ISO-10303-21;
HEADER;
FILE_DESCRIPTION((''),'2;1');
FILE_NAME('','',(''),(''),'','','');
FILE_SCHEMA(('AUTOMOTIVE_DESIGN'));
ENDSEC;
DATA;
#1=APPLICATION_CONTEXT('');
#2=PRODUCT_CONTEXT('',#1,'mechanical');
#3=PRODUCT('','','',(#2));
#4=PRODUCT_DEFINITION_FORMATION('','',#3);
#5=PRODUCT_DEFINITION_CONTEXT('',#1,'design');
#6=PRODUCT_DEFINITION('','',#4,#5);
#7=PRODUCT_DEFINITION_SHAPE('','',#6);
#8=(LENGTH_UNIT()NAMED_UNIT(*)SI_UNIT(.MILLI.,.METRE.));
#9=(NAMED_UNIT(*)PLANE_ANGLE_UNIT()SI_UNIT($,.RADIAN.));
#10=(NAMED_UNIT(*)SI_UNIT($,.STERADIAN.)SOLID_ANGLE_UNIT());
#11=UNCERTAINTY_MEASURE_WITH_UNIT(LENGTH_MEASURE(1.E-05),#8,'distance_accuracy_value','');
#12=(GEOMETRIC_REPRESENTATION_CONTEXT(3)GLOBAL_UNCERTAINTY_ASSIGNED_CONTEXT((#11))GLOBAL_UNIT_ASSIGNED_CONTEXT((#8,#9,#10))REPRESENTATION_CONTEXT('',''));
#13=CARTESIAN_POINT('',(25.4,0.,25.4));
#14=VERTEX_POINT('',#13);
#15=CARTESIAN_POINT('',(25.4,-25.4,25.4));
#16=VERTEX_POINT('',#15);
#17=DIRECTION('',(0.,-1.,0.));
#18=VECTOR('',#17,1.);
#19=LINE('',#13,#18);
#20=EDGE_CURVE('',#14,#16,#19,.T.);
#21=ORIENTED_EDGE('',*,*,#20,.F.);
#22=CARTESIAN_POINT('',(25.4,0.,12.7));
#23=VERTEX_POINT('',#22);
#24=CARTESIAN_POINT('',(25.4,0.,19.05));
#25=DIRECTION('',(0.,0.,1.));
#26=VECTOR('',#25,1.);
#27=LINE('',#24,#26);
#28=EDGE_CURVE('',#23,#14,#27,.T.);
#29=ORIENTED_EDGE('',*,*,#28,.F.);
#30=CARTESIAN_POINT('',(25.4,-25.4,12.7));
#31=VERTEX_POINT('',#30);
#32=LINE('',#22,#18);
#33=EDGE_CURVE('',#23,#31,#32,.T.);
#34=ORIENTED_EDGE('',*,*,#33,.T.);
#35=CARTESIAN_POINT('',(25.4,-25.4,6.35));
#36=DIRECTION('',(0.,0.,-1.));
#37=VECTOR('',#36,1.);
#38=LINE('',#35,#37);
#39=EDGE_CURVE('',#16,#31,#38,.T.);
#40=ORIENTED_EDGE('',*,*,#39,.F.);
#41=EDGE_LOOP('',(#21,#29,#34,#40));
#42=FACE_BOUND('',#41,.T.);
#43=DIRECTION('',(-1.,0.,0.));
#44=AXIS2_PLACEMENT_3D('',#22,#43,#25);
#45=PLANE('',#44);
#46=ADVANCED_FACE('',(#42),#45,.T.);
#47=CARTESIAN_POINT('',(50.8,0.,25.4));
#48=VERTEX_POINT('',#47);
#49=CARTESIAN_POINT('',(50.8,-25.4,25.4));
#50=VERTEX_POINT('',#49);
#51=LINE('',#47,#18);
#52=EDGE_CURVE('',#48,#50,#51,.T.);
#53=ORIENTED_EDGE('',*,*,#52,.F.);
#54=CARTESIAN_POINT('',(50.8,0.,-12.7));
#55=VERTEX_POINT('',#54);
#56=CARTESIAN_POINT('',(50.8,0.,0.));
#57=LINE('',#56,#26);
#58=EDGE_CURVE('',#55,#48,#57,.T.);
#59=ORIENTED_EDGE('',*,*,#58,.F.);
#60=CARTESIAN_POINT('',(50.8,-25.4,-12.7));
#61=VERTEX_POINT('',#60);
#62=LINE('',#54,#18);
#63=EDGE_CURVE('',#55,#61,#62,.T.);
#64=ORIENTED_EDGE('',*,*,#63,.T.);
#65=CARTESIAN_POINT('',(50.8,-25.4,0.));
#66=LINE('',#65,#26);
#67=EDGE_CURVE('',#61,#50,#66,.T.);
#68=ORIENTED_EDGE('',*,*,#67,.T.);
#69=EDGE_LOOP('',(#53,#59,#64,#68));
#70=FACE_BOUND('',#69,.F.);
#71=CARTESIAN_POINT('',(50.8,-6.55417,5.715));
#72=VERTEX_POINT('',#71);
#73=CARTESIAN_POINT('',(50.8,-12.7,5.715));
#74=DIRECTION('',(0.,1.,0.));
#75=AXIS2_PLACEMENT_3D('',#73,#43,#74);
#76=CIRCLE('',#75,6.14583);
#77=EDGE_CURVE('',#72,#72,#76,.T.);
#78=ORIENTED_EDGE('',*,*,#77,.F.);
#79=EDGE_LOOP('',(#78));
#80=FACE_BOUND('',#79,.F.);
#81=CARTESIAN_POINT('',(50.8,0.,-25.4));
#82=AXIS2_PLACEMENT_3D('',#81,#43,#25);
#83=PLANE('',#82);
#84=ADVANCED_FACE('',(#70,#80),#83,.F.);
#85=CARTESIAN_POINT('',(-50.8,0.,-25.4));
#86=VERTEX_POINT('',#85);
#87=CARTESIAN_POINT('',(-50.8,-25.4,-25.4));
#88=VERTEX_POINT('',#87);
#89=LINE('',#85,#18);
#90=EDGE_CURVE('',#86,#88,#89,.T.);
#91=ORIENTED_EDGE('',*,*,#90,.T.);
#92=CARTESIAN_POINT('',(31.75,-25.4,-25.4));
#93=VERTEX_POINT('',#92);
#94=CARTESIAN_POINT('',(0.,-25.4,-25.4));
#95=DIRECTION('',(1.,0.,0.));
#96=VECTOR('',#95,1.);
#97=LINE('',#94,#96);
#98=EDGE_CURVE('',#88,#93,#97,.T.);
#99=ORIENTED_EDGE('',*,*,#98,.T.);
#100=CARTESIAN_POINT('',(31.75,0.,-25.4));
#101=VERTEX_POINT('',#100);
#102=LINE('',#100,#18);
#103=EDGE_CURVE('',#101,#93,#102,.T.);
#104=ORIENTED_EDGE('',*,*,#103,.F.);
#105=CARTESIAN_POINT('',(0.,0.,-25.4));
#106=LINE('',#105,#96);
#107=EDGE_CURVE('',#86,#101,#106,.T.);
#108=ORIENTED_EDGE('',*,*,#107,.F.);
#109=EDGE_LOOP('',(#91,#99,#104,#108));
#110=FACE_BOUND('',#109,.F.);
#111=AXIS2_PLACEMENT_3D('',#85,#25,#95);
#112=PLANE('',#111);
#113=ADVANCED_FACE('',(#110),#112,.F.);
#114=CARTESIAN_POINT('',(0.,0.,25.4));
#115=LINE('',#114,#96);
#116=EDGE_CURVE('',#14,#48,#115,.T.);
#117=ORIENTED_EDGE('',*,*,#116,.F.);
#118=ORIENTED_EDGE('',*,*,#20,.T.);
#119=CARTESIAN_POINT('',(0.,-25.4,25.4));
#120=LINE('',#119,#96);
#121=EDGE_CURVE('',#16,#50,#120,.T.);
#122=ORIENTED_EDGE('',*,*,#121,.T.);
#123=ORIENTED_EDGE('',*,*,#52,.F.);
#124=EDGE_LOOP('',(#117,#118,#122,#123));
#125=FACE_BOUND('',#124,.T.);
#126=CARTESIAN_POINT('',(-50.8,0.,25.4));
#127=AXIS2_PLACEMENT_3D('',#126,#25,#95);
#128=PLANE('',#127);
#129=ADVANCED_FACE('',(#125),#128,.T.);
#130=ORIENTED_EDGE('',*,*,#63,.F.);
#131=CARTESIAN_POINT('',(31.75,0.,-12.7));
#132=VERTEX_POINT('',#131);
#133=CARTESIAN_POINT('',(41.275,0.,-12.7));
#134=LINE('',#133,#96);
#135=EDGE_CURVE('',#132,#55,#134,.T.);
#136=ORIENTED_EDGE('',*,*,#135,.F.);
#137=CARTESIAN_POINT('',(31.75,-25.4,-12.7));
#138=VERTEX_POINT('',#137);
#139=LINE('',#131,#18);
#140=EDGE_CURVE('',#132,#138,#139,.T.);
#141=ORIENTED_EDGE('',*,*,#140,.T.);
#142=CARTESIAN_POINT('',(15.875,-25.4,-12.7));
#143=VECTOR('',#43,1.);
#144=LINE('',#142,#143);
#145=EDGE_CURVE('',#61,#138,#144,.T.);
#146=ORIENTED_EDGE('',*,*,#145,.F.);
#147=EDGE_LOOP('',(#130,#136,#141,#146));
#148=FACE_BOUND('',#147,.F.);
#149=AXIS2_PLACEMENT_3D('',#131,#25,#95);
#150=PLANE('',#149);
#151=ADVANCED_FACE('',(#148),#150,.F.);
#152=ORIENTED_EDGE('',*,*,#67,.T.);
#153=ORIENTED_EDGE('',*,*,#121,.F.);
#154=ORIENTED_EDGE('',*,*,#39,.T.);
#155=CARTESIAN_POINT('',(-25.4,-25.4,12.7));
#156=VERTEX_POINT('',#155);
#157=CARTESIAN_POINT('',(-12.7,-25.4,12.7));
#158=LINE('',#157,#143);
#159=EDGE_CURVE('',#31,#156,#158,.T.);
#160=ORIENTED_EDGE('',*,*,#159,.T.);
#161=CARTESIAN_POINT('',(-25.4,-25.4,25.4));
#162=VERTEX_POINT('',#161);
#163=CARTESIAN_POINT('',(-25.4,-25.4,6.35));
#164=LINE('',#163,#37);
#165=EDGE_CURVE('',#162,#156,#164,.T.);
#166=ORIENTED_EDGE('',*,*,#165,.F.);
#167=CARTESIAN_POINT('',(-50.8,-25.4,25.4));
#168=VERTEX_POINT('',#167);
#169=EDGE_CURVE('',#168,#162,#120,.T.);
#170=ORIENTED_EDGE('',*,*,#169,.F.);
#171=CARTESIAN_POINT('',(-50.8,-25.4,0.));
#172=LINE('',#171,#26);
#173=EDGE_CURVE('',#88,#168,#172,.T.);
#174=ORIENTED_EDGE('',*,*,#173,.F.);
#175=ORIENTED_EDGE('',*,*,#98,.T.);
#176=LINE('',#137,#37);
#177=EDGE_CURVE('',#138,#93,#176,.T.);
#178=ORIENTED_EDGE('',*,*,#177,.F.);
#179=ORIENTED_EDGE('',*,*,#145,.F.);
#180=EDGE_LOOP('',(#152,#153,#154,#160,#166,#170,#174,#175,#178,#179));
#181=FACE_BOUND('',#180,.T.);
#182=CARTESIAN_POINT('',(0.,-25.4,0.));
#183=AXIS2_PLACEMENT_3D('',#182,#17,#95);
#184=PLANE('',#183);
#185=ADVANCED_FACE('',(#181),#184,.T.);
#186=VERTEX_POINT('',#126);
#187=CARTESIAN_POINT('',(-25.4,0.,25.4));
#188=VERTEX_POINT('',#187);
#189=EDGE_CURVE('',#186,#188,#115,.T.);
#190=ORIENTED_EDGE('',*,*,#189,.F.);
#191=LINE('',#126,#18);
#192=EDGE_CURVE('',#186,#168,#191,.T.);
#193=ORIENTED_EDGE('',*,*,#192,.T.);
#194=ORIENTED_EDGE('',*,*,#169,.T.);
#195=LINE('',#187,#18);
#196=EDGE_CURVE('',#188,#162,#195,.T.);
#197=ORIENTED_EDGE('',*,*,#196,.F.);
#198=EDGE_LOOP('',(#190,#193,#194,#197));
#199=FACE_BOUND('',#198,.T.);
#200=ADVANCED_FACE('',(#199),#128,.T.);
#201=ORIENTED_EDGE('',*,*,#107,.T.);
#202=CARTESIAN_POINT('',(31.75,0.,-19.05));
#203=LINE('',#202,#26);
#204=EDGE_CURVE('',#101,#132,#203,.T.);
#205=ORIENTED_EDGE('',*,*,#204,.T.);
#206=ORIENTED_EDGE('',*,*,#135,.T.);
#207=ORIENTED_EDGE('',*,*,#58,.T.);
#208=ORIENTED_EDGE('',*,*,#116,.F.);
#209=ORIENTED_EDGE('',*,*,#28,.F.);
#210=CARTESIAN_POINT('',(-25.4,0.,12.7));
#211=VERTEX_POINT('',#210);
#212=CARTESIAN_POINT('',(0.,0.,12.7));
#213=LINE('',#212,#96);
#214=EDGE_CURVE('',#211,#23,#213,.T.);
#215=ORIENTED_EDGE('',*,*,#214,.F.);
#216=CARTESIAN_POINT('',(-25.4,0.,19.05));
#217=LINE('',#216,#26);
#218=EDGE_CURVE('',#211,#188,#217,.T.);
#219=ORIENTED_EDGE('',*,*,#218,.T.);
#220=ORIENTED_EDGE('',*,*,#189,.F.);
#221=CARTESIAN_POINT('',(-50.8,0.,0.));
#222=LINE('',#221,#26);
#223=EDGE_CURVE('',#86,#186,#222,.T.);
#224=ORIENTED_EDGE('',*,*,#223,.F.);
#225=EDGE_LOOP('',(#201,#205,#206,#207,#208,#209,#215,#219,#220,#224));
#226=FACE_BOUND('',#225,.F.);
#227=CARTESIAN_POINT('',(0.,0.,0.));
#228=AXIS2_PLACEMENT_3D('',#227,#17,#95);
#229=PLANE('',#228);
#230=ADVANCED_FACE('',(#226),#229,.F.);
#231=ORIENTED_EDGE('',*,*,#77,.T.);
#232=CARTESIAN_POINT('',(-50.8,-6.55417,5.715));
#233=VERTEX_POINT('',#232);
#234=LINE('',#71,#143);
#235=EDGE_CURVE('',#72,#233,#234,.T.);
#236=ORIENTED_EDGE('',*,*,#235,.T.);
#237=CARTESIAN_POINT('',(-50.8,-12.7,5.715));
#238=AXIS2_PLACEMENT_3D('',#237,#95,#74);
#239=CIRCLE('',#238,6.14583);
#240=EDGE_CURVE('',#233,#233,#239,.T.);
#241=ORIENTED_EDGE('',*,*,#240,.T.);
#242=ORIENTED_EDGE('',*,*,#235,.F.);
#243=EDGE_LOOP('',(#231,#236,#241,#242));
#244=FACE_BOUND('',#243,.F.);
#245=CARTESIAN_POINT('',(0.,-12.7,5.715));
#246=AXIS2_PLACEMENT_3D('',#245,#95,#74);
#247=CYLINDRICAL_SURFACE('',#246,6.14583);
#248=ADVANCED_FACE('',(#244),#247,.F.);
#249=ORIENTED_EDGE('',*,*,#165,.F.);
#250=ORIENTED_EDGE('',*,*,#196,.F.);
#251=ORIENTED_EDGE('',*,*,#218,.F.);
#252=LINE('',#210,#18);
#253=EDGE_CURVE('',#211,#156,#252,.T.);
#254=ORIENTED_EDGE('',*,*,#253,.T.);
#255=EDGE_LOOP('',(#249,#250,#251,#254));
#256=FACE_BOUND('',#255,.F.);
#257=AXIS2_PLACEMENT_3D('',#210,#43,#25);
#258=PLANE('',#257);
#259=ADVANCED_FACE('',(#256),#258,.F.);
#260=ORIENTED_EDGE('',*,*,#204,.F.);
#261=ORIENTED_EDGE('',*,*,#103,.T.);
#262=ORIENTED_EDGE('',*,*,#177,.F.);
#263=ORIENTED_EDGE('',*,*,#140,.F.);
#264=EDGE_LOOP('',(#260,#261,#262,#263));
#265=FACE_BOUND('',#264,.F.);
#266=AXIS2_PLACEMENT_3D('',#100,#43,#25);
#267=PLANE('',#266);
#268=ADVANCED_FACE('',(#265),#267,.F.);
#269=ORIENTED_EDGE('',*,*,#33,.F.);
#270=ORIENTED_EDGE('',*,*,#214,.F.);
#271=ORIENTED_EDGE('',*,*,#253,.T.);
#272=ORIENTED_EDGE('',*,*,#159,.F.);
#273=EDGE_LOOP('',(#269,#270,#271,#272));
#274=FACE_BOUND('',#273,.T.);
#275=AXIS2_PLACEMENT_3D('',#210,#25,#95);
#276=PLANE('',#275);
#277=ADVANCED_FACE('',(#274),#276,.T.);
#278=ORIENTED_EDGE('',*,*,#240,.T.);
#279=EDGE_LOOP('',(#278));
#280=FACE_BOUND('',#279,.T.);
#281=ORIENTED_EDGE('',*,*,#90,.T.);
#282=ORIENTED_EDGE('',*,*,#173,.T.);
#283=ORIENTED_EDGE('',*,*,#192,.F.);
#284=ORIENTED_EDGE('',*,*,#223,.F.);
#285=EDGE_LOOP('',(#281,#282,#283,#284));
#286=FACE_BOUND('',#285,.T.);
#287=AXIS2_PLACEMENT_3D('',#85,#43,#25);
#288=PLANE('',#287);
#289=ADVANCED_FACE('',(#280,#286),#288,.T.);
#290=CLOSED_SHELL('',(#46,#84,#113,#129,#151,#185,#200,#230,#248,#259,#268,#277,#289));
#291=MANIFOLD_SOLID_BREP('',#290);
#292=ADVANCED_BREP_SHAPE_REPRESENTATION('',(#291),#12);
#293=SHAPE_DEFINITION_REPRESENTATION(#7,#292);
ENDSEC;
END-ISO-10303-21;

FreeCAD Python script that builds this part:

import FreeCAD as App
import Part
import Sketcher
Q = App.Units.Quantity


def add_polygon(sketch, points):
    """Adds a closed chain of lines whose ends are joined by coincident constraints."""
    first, n = sketch.GeometryCount, len(points)
    for a, b in zip(points, points[1:] + points[:1]):
        sketch.addGeometry(Part.LineSegment(App.Vector(*a, 0), App.Vector(*b, 0)), False)
    for i in range(n):
        sketch.addConstraint(Sketcher.Constraint("Coincident", first + i, 2, first + (i + 1) % n, 1))

doc = App.newDocument("Part")
params = doc.addObject("Spreadsheet::Sheet", "Params")
for row, (alias, value) in enumerate([
    ("sketch1_width", "4 in"),
    ("sketch1_height", "2 in"),
    ("pad1_length", "1 in"),
    ("sketch2_width", "2 in"),
    ("sketch2_height", "0.5 in"),
    ("sketch3_height", "0.5 in"),
    ("sketch3_width", "0.75 in"),
    ("pocket3_length", "2 in"),
], start=1):
    params.set(f"A{row}", alias)
    params.set(f"B{row}", "=" + value)
    params.setAlias(f"B{row}", alias)

body = doc.addObject("PartDesign::Body", "Body")

sketch1 = doc.addObject("Sketcher::SketchObject", "Sketch")
body.addObject(sketch1)
sketch1.AttachmentSupport = (doc.XZ_Plane, [""])
sketch1.MapMode = "FlatFace"
add_polygon(sketch1, [(-50.8, 25.4), (-50.8, -25.4), (50.8, -25.4), (50.8, 25.4)])
sketch1.addConstraint([
    Sketcher.Constraint("Vertical", 0),
    Sketcher.Constraint("Horizontal", 1),
    Sketcher.Constraint("Vertical", 2),
    Sketcher.Constraint("Horizontal", 3),
    Sketcher.Constraint("Symmetric", 0, 2, 2, 2, -1, 1),
    Sketcher.Constraint("DistanceX", 1, 1, 1, 2, Q("4 in")),
    Sketcher.Constraint("DistanceY", 0, 2, 0, 1, Q("2 in")),
])
sketch1.setExpression("Constraints[9]", "Params.sketch1_width")
sketch1.setExpression("Constraints[10]", "Params.sketch1_height")
pad1 = doc.addObject("PartDesign::Pad", "Pad")
body.addObject(pad1)
pad1.Profile = sketch1
pad1.setExpression("Length", "Params.pad1_length")

sketch2 = doc.addObject("Sketcher::SketchObject", "Sketch001")
body.addObject(sketch2)
sketch2.AttachmentSupport = (doc.XZ_Plane, [""])
sketch2.MapMode = "FlatFace"
add_polygon(sketch2, [(-25.4, 25.4), (-25.4, 12.7), (25.4, 12.7), (25.4, 25.4)])
sketch2.addConstraint([
    Sketcher.Constraint("Vertical", 0),
    Sketcher.Constraint("Horizontal", 1),
    Sketcher.Constraint("Vertical", 2),
    Sketcher.Constraint("Horizontal", 3),
    Sketcher.Constraint("DistanceX", 1, 1, 1, 2, Q("2 in")),
    Sketcher.Constraint("DistanceY", 0, 2, 0, 1, Q("0.5 in")),
    Sketcher.Constraint("DistanceX", 0, 2, -1, 1, Q("1 in")),
    Sketcher.Constraint("DistanceY", -1, 1, 2, 2, Q("1 in")),
])
sketch2.setExpression("Constraints[8]", "Params.sketch2_width")
sketch2.setExpression("Constraints[9]", "Params.sketch2_height")
pocket1 = doc.addObject("PartDesign::Pocket", "Pocket")
body.addObject(pocket1)
pocket1.Profile = sketch2
pocket1.Type = "ThroughAll"
pocket1.Reversed = True

sketch3 = doc.addObject("Sketcher::SketchObject", "Sketch002")
body.addObject(sketch3)
sketch3.AttachmentSupport = (doc.XZ_Plane, [""])
sketch3.MapMode = "FlatFace"
add_polygon(sketch3, [(31.75, -12.7), (31.75, -25.4), (50.8, -25.4), (50.8, -12.7)])
sketch3.addConstraint([
    Sketcher.Constraint("Vertical", 0),
    Sketcher.Constraint("Horizontal", 1),
    Sketcher.Constraint("Vertical", 2),
    Sketcher.Constraint("Horizontal", 3),
    Sketcher.Constraint("DistanceY", 0, 2, 0, 1, Q("0.5 in")),
    Sketcher.Constraint("DistanceY", 0, 2, -1, 1, Q("1 in")),
    Sketcher.Constraint("DistanceX", -1, 1, 1, 2, Q("2 in")),
    Sketcher.Constraint("DistanceX", 1, 1, 1, 2, Q("0.75 in")),
])
sketch3.setExpression("Constraints[8]", "Params.sketch3_height")
sketch3.setExpression("Constraints[11]", "Params.sketch3_width")
pocket2 = doc.addObject("PartDesign::Pocket", "Pocket001")
body.addObject(pocket2)
pocket2.Profile = sketch3
pocket2.Type = "ThroughAll"
pocket2.Reversed = True

sketch4 = doc.addObject("Sketcher::SketchObject", "Sketch003")
body.addObject(sketch4)
sketch4.AttachmentSupport = (doc.YZ_Plane, [""])
sketch4.MapMode = "FlatFace"
sketch4.addGeometry(Part.Circle(App.Vector(-12.7, 5.715, 0), App.Vector(0, 0, 1), 6.14583), False)
sketch4.addConstraint([
    Sketcher.Constraint("DistanceX", 0, 3, -1, 1, Q("0.5 in")),
    Sketcher.Constraint("Diameter", 0, 12.29166),
    Sketcher.Constraint("DistanceY", -1, 1, 0, 3, Q("0.225 in")),
])
pocket3 = doc.addObject("PartDesign::Pocket", "Pocket002")
body.addObject(pocket3)
pocket3.Profile = sketch4
pocket3.setExpression("Length", "Params.pocket3_length")

sketch5 = doc.addObject("Sketcher::SketchObject", "Sketch004")
body.addObject(sketch5)
sketch5.AttachmentSupport = (doc.YZ_Plane, [""])
sketch5.MapMode = "FlatFace"
sketch5.addGeometry(Part.Circle(App.Vector(-12.7, 5.715, 0), App.Vector(0, 0, 1), 6.14583), False)
sketch5.addConstraint([
    Sketcher.Constraint("DistanceX", 0, 3, -1, 1, Q("0.5 in")),
    Sketcher.Constraint("Diameter", 0, 12.29166),
    Sketcher.Constraint("DistanceY", -1, 1, 0, 3, Q("0.225 in")),
])
pocket4 = doc.addObject("PartDesign::Pocket", "Pocket003")
body.addObject(pocket4)
pocket4.Profile = sketch5
pocket4.Type = "ThroughAll"
pocket4.Reversed = True

doc.recompute()
